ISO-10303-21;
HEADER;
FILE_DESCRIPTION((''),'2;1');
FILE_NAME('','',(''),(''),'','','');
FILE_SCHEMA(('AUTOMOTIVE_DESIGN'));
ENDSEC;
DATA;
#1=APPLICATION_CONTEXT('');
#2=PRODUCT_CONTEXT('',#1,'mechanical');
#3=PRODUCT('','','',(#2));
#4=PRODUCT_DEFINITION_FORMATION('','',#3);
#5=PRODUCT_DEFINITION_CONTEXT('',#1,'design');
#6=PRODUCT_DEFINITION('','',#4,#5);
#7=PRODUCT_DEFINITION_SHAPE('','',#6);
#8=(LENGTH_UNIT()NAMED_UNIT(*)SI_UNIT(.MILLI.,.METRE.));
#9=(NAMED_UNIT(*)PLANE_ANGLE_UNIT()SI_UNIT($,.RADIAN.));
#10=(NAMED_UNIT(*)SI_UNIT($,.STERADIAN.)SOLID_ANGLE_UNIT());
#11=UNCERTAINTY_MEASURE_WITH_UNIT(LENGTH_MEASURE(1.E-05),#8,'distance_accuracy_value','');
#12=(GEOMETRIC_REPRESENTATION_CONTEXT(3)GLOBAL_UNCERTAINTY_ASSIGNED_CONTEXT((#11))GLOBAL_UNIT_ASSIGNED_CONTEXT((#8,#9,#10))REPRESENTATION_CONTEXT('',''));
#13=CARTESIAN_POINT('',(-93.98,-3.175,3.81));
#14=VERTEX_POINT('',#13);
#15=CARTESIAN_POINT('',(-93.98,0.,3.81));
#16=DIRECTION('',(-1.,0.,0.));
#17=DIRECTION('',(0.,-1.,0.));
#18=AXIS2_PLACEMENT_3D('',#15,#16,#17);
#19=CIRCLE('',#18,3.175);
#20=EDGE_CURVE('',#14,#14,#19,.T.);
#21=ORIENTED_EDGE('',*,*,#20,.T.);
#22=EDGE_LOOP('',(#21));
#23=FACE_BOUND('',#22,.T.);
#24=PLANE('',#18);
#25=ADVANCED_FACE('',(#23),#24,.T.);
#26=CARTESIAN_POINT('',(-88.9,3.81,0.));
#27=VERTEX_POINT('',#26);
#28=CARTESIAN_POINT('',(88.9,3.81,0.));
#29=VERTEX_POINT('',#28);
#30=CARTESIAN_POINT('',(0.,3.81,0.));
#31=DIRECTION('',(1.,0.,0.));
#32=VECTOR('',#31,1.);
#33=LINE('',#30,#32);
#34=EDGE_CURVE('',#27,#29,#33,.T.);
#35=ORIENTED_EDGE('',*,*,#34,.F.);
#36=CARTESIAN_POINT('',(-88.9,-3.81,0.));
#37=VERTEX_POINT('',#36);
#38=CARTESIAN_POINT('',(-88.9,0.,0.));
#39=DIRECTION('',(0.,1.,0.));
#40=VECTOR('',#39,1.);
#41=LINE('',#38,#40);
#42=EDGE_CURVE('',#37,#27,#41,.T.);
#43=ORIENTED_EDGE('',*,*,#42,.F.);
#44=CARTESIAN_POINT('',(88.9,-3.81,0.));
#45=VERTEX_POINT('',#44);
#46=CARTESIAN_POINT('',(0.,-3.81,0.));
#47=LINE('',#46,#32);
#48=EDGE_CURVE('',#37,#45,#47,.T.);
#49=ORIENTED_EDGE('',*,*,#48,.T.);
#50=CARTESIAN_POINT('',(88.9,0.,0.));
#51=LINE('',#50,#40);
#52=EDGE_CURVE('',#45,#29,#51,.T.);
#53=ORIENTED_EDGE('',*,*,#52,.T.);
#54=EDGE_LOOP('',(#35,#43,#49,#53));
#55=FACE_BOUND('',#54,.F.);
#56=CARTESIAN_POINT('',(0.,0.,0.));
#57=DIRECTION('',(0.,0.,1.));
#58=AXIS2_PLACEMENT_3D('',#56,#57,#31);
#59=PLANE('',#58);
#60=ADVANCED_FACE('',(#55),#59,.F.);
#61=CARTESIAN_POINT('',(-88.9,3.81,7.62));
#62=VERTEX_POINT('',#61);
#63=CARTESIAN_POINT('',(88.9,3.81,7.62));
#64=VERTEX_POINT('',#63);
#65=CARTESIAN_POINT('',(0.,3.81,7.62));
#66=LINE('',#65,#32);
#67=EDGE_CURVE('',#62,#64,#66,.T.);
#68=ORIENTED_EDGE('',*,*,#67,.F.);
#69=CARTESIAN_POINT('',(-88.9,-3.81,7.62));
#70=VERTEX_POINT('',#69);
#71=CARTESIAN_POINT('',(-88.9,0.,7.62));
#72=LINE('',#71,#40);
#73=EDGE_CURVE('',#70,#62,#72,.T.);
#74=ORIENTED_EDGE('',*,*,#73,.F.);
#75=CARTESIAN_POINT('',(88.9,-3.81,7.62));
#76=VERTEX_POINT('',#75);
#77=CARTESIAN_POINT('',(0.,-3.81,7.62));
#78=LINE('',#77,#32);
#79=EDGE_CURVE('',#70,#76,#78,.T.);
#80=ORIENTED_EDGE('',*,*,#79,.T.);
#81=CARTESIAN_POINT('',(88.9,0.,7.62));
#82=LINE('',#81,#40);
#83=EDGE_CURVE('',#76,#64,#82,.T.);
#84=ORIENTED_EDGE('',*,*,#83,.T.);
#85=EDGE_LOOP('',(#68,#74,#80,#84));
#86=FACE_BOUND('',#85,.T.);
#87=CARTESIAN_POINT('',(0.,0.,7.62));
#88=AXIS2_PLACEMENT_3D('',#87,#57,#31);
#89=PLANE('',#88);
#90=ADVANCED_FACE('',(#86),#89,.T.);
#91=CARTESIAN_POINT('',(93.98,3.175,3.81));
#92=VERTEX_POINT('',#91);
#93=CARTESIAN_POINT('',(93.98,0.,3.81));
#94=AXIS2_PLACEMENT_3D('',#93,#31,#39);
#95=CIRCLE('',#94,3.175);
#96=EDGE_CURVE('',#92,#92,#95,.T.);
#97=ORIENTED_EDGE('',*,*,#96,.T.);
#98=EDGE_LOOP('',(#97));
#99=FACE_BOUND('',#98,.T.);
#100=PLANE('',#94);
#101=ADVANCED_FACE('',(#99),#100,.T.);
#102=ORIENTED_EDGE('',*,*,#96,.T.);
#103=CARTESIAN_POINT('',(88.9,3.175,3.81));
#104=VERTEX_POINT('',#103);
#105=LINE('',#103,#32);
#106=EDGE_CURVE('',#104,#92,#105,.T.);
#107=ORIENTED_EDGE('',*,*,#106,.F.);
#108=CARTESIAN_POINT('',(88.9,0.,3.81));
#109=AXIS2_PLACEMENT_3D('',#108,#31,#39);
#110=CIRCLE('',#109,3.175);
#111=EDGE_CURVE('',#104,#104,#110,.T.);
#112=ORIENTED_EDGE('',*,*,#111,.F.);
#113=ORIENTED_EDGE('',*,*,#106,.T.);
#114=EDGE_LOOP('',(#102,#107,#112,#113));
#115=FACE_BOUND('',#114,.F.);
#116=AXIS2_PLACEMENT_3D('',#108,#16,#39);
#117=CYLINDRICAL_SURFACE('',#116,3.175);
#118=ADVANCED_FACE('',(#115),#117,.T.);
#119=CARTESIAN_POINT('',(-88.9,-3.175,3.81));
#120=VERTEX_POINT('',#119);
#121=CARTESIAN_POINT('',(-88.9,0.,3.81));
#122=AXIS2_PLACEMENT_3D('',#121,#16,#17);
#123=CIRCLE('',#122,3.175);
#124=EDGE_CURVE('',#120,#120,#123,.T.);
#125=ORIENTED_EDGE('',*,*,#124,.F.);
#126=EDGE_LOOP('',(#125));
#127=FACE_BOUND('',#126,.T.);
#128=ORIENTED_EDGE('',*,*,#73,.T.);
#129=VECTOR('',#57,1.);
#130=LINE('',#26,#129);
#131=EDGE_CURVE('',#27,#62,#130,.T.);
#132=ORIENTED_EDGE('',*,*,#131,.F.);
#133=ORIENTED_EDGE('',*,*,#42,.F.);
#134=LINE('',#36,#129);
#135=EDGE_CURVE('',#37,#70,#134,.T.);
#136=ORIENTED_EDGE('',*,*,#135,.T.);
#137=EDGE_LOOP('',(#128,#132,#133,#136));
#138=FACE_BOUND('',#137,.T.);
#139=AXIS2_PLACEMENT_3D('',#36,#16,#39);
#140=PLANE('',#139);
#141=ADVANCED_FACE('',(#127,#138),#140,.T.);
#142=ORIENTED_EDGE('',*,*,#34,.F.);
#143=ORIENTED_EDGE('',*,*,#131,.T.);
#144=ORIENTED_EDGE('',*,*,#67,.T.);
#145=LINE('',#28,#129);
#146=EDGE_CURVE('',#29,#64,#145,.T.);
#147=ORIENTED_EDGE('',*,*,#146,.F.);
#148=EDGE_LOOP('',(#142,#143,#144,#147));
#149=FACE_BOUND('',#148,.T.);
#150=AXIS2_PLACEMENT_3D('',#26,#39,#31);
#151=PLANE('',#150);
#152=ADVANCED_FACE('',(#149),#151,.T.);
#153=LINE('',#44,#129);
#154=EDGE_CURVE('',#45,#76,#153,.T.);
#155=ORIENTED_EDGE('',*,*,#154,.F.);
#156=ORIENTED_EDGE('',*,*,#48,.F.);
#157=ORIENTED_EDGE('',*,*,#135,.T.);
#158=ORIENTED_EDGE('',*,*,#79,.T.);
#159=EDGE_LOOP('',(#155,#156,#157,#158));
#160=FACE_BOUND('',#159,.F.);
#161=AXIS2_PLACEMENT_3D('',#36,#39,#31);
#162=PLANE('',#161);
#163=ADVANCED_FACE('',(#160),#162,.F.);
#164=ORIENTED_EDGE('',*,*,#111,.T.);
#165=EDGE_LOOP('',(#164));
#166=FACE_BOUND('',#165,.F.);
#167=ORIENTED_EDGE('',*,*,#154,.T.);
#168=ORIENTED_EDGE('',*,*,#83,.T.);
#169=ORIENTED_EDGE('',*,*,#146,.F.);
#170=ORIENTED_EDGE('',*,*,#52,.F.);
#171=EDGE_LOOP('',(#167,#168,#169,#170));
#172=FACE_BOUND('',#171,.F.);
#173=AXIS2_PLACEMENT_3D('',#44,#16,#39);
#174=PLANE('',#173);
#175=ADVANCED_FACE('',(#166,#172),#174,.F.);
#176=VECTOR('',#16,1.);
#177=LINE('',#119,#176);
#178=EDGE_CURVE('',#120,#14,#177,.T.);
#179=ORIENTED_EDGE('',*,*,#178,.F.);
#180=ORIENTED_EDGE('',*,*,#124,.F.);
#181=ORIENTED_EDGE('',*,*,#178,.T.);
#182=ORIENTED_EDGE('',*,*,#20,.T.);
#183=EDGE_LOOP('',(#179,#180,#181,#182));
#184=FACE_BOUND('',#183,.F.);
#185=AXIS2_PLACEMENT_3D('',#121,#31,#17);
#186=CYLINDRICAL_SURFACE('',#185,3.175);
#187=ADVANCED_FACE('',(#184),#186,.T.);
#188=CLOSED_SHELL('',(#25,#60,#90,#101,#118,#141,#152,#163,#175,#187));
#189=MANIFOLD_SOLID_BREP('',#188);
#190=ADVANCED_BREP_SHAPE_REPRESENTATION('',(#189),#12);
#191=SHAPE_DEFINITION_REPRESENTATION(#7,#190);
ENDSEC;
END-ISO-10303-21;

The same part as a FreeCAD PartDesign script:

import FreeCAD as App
import Part
import Sketcher
Q = App.Units.Quantity


def add_polygon(sketch, points):
    """Adds a closed chain of lines whose ends are joined by coincident constraints."""
    first, n = sketch.GeometryCount, len(points)
    for a, b in zip(points, points[1:] + points[:1]):
        sketch.addGeometry(Part.LineSegment(App.Vector(*a, 0), App.Vector(*b, 0)), False)
    for i in range(n):
        sketch.addConstraint(Sketcher.Constraint("Coincident", first + i, 2, first + (i + 1) % n, 1))

doc = App.newDocument("Part")
body = doc.addObject("PartDesign::Body", "Body")

# Sketch on XY plane
sketch1 = doc.addObject("Sketcher::SketchObject", "Sketch")
body.addObject(sketch1)
sketch1.AttachmentSupport = (doc.XY_Plane, [""])
sketch1.MapMode = "FlatFace"
add_polygon(sketch1, [(-88.9, 3.81), (-88.9, -3.81), (88.9, -3.81), (88.9, 3.81)])  # lines 0-3
sketch1.addConstraint([
    Sketcher.Constraint("Vertical", 0),
    Sketcher.Constraint("Horizontal", 1),
    Sketcher.Constraint("Vertical", 2),
    Sketcher.Constraint("Horizontal", 3),
    Sketcher.Constraint("Symmetric", 0, 2, 2, 2, -1, 1),
    Sketcher.Constraint("DistanceX", 1, 1, 1, 2, Q("7 in")),
    Sketcher.Constraint("DistanceY", 0, 2, 0, 1, Q("0.3 in")),
])
pad1 = doc.addObject("PartDesign::Pad", "Pad")
body.addObject(pad1)
pad1.Profile = sketch1
pad1.Length = Q("0.3 in")

# Sketch on YZ plane
sketch2 = doc.addObject("Sketcher::SketchObject", "Sketch001")
body.addObject(sketch2)
sketch2.AttachmentSupport = (doc.YZ_Plane, [""])
sketch2.MapMode = "FlatFace"
sketch2.AttachmentOffset = App.Placement(App.Vector(0, 0, 3.5 * 25.4), App.Rotation())
sketch2.addGeometry(Part.Circle(App.Vector(0, 3.81, 0), App.Vector(0, 0, 1), 3.175), False)
sketch2.addConstraint([
    Sketcher.Constraint("PointOnObject", 0, 3, -2),
    Sketcher.Constraint("Diameter", 0, Q("0.25 in")),
    Sketcher.Constraint("DistanceY", -1, 1, 0, 3, Q("0.15 in")),
])
pad2 = doc.addObject("PartDesign::Pad", "Pad001")
body.addObject(pad2)
pad2.Profile = sketch2
pad2.Length = Q("0.2 in")

# Sketch on YZ plane
sketch3 = doc.addObject("Sketcher::SketchObject", "Sketch002")
body.addObject(sketch3)
sketch3.AttachmentSupport = (doc.YZ_Plane, [""])
sketch3.MapMode = "FlatFace"
sketch3.AttachmentOffset = App.Placement(App.Vector(0, 0, -3.5 * 25.4), App.Rotation())
sketch3.addGeometry(Part.Circle(App.Vector(0, 3.81, 0), App.Vector(0, 0, 1), 3.175), False)
sketch3.addConstraint([
    Sketcher.Constraint("PointOnObject", 0, 3, -2),
    Sketcher.Constraint("Diameter", 0, Q("0.25 in")),
    Sketcher.Constraint("DistanceY", -1, 1, 0, 3, Q("0.15 in")),
])
pad3 = doc.addObject("PartDesign::Pad", "Pad002")
body.addObject(pad3)
pad3.Profile = sketch3
pad3.Length = Q("0.2 in")
pad3.Reversed = True

doc.recompute()
